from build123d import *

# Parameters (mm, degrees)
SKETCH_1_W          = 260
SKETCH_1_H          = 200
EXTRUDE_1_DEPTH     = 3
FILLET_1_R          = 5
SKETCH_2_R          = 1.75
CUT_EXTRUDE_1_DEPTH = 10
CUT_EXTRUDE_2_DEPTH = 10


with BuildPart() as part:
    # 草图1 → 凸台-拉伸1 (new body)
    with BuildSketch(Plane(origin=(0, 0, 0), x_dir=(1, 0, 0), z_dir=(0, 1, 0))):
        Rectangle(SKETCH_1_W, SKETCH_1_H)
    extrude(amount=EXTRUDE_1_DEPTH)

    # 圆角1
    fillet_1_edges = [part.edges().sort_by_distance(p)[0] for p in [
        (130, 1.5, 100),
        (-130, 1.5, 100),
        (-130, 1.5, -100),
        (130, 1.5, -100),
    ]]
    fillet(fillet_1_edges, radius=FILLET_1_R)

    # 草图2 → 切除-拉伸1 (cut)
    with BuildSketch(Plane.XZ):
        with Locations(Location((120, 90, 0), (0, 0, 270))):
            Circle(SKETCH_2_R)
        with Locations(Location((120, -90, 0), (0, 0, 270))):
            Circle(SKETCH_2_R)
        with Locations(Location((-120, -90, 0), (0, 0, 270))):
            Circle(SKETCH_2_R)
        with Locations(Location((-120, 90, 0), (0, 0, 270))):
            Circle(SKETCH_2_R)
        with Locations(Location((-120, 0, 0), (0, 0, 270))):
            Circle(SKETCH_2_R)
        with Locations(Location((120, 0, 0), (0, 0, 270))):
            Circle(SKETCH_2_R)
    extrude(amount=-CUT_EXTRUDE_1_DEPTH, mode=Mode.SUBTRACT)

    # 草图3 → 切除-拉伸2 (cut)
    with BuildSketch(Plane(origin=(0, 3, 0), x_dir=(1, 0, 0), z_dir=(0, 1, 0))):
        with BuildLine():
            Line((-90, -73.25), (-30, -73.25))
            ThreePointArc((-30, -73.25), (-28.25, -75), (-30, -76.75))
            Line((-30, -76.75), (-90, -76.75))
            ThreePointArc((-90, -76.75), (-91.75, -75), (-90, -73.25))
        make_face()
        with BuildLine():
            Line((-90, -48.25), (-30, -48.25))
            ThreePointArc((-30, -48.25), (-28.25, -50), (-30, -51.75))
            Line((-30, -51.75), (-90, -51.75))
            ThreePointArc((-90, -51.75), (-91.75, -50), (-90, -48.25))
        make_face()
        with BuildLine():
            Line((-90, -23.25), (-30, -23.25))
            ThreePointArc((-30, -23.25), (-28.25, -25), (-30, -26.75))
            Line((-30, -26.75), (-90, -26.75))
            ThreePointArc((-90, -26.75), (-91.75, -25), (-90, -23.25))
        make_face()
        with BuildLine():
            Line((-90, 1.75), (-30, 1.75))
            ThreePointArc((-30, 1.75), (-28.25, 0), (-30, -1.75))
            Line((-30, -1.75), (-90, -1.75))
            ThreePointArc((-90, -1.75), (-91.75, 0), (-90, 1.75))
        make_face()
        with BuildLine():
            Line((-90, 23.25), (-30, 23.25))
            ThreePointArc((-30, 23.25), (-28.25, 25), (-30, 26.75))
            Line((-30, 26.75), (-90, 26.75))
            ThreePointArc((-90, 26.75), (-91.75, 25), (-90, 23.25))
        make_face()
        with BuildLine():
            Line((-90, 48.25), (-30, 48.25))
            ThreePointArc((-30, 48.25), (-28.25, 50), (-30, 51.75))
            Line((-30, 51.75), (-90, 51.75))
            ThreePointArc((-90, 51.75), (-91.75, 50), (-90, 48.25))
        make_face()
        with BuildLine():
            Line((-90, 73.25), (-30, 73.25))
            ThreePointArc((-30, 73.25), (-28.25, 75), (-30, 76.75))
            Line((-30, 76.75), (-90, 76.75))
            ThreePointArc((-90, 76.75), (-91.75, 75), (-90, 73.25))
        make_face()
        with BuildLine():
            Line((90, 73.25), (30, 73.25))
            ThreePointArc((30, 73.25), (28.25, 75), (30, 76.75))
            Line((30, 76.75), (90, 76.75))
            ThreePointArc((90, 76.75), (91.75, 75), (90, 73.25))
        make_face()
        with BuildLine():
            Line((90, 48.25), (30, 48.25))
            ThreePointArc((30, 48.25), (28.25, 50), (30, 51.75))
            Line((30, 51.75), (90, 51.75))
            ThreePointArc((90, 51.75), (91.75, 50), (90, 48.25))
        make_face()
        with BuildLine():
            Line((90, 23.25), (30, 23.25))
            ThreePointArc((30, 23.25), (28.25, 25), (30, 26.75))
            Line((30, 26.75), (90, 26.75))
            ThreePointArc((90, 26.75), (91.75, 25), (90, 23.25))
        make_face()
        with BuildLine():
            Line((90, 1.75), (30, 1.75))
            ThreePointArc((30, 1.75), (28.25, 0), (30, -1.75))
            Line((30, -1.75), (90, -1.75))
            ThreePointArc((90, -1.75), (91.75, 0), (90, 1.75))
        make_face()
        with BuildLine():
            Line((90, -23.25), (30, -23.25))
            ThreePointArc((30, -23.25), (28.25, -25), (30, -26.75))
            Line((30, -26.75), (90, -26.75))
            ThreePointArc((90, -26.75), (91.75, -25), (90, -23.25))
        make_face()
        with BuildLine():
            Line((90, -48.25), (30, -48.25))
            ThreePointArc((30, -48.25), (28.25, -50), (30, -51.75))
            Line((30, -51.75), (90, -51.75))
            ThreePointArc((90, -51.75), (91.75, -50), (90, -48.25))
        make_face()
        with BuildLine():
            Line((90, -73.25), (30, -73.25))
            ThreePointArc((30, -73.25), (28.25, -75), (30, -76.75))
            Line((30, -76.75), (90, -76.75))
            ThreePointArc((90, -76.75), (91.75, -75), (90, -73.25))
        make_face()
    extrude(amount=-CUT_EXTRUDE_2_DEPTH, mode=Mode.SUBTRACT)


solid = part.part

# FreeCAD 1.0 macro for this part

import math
import FreeCAD as App
import Part
import Sketcher

V = App.Vector


def edges_at(feature, points):
    """Names of the edges that pass closest to the given points."""
    edges = feature.Shape.Edges
    near = lambda p: min(range(len(edges)), key=lambda i: edges[i].distToShape(Part.Vertex(*p))[0])
    return sorted({f"Edge{near(p) + 1}" for p in points})


def add_polygon(sketch, points):
    """Adds a closed chain of lines whose ends are joined by coincident constraints."""
    first, n = sketch.GeometryCount, len(points)
    for a, b in zip(points, points[1:] + points[:1]):
        sketch.addGeometry(Part.LineSegment(App.Vector(*a, 0), App.Vector(*b, 0)), False)
    for i in range(n):
        sketch.addConstraint(Sketcher.Constraint("Coincident", first + i, 2, first + (i + 1) % n, 1))

doc = App.newDocument("Part")
body = doc.addObject("PartDesign::Body", "Body")

# Sketch on XZ plane
sketch1 = body.newObject("Sketcher::SketchObject", "Sketch")
sketch1.AttachmentSupport = (doc.getObject("XZ_Plane"), [""])
sketch1.MapMode = "FlatFace"
add_polygon(sketch1, [(-130, -100), (-130, 100), (130, 100), (130, -100)])  # lines 0-3
sketch1.addConstraint([
    Sketcher.Constraint("Vertical", 0),
    Sketcher.Constraint("Horizontal", 1),
    Sketcher.Constraint("Vertical", 2),
    Sketcher.Constraint("Horizontal", 3),
    Sketcher.Constraint("Symmetric", 0, 2, 2, 2, -1, 1),
    Sketcher.Constraint("DistanceX", 1, 1, 1, 2, 260.0),
    Sketcher.Constraint("DistanceY", 0, 1, 0, 2, 200.0),
])
pad1 = body.newObject("PartDesign::Pad", "Pad")
pad1.Profile = sketch1
pad1.Length = 3
pad1.Reversed = True
doc.recompute()

fillet = body.newObject("PartDesign::Fillet", "Fillet")
fillet.Base = (pad1, edges_at(pad1, [
    (130, 1.5, 100),
    (-130, 1.5, 100),
    (-130, 1.5, -100),
    (130, 1.5, -100),
]))
fillet.Radius = 5

# Sketch on XZ plane
sketch2 = body.newObject("Sketcher::SketchObject", "Sketch001")
sketch2.AttachmentSupport = (doc.getObject("XZ_Plane"), [""])
sketch2.MapMode = "FlatFace"
sketch2.addGeometry([
    Part.Circle(V(120, 90, 0), V(0, 0, 1), 1.8),  # 0
    Part.Circle(V(120, -90, 0), V(0, 0, 1), 1.8),  # 1
    Part.Circle(V(-120, -90, 0), V(0, 0, 1), 1.8),  # 2
    Part.Circle(V(-120, 90, 0), V(0, 0, 1), 1.8),  # 3
    Part.Circle(V(-120, 0, 0), V(0, 0, 1), 1.8),  # 4
    Part.Circle(V(120, 0, 0), V(0, 0, 1), 1.8),  # 5
], False)
sketch2.addConstraint([
    Sketcher.Constraint("Equal", 0, 1),
    Sketcher.Constraint("Equal", 1, 2),
    Sketcher.Constraint("Equal", 2, 3),
    Sketcher.Constraint("Equal", 3, 4),
    Sketcher.Constraint("Equal", 4, 5),
    Sketcher.Constraint("Symmetric", 0, 3, 2, 3, -1, 1),
    Sketcher.Constraint("Symmetric", 1, 3, 3, 3, -1, 1),
    Sketcher.Constraint("Symmetric", 4, 3, 5, 3, -1, 1),
    Sketcher.Constraint("Symmetric", 1, 3, 2, 3, -2),
    Sketcher.Constraint("PointOnObject", 4, 3, -1),
    Sketcher.Constraint("Vertical", 3, 3, 4, 3),
    Sketcher.Constraint("Diameter", 0, 3.5),
    Sketcher.Constraint("DistanceX", -1, 1, 0, 3, 120.0),
    Sketcher.Constraint("DistanceY", -1, 1, 0, 3, 90.0),
])
pocket1 = body.newObject("PartDesign::Pocket", "Pocket")
pocket1.Profile = sketch2
pocket1.Length = 10

# Sketch on XZ plane
sketch3 = body.newObject("Sketcher::SketchObject", "Sketch002")
sketch3.AttachmentSupport = (doc.getObject("XZ_Plane"), [""])
sketch3.MapMode = "FlatFace"
sketch3.AttachmentOffset = App.Placement(V(0, 0, -3), App.Rotation())
sketch3.addGeometry([
    Part.LineSegment(V(-30, 73.2, 0), V(-90, 73.2, 0)),  # 0
    Part.ArcOfCircle(Part.Circle(V(-90, 75, 0), V(0, 0, 1), 1.8), math.radians(90), math.radians(270)),  # 1
    Part.LineSegment(V(-90, 76.8, 0), V(-30, 76.8, 0)),  # 2
    Part.ArcOfCircle(Part.Circle(V(-30, 75, 0), V(0, 0, 1), 1.8), math.radians(-90), math.radians(90)),  # 3
    Part.LineSegment(V(-30, 48.2, 0), V(-90, 48.2, 0)),  # 4
    Part.ArcOfCircle(Part.Circle(V(-90, 50, 0), V(0, 0, 1), 1.8), math.radians(90), math.radians(270)),  # 5
    Part.LineSegment(V(-90, 51.8, 0), V(-30, 51.8, 0)),  # 6
    Part.ArcOfCircle(Part.Circle(V(-30, 50, 0), V(0, 0, 1), 1.8), math.radians(-90), math.radians(90)),  # 7
    Part.LineSegment(V(-30, 23.2, 0), V(-90, 23.2, 0)),  # 8
    Part.ArcOfCircle(Part.Circle(V(-90, 25, 0), V(0, 0, 1), 1.8), math.radians(90), math.radians(270)),  # 9
    Part.LineSegment(V(-90, 26.8, 0), V(-30, 26.8, 0)),  # 10
    Part.ArcOfCircle(Part.Circle(V(-30, 25, 0), V(0, 0, 1), 1.8), math.radians(-90), math.radians(90)),  # 11
    Part.LineSegment(V(-30, -1.8, 0), V(-90, -1.8, 0)),  # 12
    Part.ArcOfCircle(Part.Circle(V(-90, 0, 0), V(0, 0, 1), 1.8), math.radians(90), math.radians(270)),  # 13
    Part.LineSegment(V(-90, 1.8, 0), V(-30, 1.8, 0)),  # 14
    Part.ArcOfCircle(Part.Circle(V(-30, 0, 0), V(0, 0, 1), 1.8), math.radians(-90), math.radians(90)),  # 15
    Part.LineSegment(V(-90, -23.2, 0), V(-30, -23.2, 0)),  # 16
    Part.ArcOfCircle(Part.Circle(V(-30, -25, 0), V(0, 0, 1), 1.8), math.radians(-90), math.radians(90)),  # 17
    Part.LineSegment(V(-30, -26.8, 0), V(-90, -26.8, 0)),  # 18
    Part.ArcOfCircle(Part.Circle(V(-90, -25, 0), V(0, 0, 1), 1.8), math.radians(90), math.radians(270)),  # 19
    Part.LineSegment(V(-90, -48.2, 0), V(-30, -48.2, 0)),  # 20
    Part.ArcOfCircle(Part.Circle(V(-30, -50, 0), V(0, 0, 1), 1.8), math.radians(-90), math.radians(90)),  # 21
    Part.LineSegment(V(-30, -51.8, 0), V(-90, -51.8, 0)),  # 22
    Part.ArcOfCircle(Part.Circle(V(-90, -50, 0), V(0, 0, 1), 1.8), math.radians(90), math.radians(270)),  # 23
    Part.LineSegment(V(-90, -73.2, 0), V(-30, -73.2, 0)),  # 24
    Part.ArcOfCircle(Part.Circle(V(-30, -75, 0), V(0, 0, 1), 1.8), math.radians(-90), math.radians(90)),  # 25
    Part.LineSegment(V(-30, -76.8, 0), V(-90, -76.8, 0)),  # 26
    Part.ArcOfCircle(Part.Circle(V(-90, -75, 0), V(0, 0, 1), 1.8), math.radians(90), math.radians(270)),  # 27
    Part.LineSegment(V(30, -73.2, 0), V(90, -73.2, 0)),  # 28
    Part.ArcOfCircle(Part.Circle(V(90, -75, 0), V(0, 0, 1), 1.8), math.radians(-90), math.radians(90)),  # 29
    Part.LineSegment(V(90, -76.8, 0), V(30, -76.8, 0)),  # 30
    Part.ArcOfCircle(Part.Circle(V(30, -75, 0), V(0, 0, 1), 1.8), math.radians(90), math.radians(270)),  # 31
    Part.LineSegment(V(30, -48.2, 0), V(90, -48.2, 0)),  # 32
    Part.ArcOfCircle(Part.Circle(V(90, -50, 0), V(0, 0, 1), 1.8), math.radians(-90), math.radians(90)),  # 33
    Part.LineSegment(V(90, -51.8, 0), V(30, -51.8, 0)),  # 34
    Part.ArcOfCircle(Part.Circle(V(30, -50, 0), V(0, 0, 1), 1.8), math.radians(90), math.radians(270)),  # 35
    Part.LineSegment(V(30, -23.2, 0), V(90, -23.2, 0)),  # 36
    Part.ArcOfCircle(Part.Circle(V(90, -25, 0), V(0, 0, 1), 1.8), math.radians(-90), math.radians(90)),  # 37
    Part.LineSegment(V(90, -26.8, 0), V(30, -26.8, 0)),  # 38
    Part.ArcOfCircle(Part.Circle(V(30, -25, 0), V(0, 0, 1), 1.8), math.radians(90), math.radians(270)),  # 39
    Part.LineSegment(V(90, -1.8, 0), V(30, -1.8, 0)),  # 40
    Part.ArcOfCircle(Part.Circle(V(30, 0, 0), V(0, 0, 1), 1.8), math.radians(90), math.radians(270)),  # 41
    Part.LineSegment(V(30, 1.8, 0), V(90, 1.8, 0)),  # 42
    Part.ArcOfCircle(Part.Circle(V(90, 0, 0), V(0, 0, 1), 1.8), math.radians(-90), math.radians(90)),  # 43
    Part.LineSegment(V(90, 23.2, 0), V(30, 23.2, 0)),  # 44
    Part.ArcOfCircle(Part.Circle(V(30, 25, 0), V(0, 0, 1), 1.8), math.radians(90), math.radians(270)),  # 45
    Part.LineSegment(V(30, 26.8, 0), V(90, 26.8, 0)),  # 46
    Part.ArcOfCircle(Part.Circle(V(90, 25, 0), V(0, 0, 1), 1.8), math.radians(-90), math.radians(90)),  # 47
    Part.LineSegment(V(90, 48.2, 0), V(30, 48.2, 0)),  # 48
    Part.ArcOfCircle(Part.Circle(V(30, 50, 0), V(0, 0, 1), 1.8), math.radians(90), math.radians(270)),  # 49
    Part.LineSegment(V(30, 51.8, 0), V(90, 51.8, 0)),  # 50
    Part.ArcOfCircle(Part.Circle(V(90, 50, 0), V(0, 0, 1), 1.8), math.radians(-90), math.radians(90)),  # 51
    Part.LineSegment(V(90, 73.2, 0), V(30, 73.2, 0)),  # 52
    Part.ArcOfCircle(Part.Circle(V(30, 75, 0), V(0, 0, 1), 1.8), math.radians(90), math.radians(270)),  # 53
    Part.LineSegment(V(30, 76.8, 0), V(90, 76.8, 0)),  # 54
    Part.ArcOfCircle(Part.Circle(V(90, 75, 0), V(0, 0, 1), 1.8), math.radians(-90), math.radians(90)),  # 55
], False)
sketch3.addConstraint([
    Sketcher.Constraint("Tangent", 0, 2, 1, 2),
    Sketcher.Constraint("Tangent", 1, 1, 2, 1),
    Sketcher.Constraint("Tangent", 2, 2, 3, 2),
    Sketcher.Constraint("Tangent", 3, 1, 0, 1),
    Sketcher.Constraint("Tangent", 4, 2, 5, 2),
    Sketcher.Constraint("Tangent", 5, 1, 6, 1),
    Sketcher.Constraint("Tangent", 6, 2, 7, 2),
    Sketcher.Constraint("Tangent", 7, 1, 4, 1),
    Sketcher.Constraint("Tangent", 8, 2, 9, 2),
    Sketcher.Constraint("Tangent", 9, 1, 10, 1),
    Sketcher.Constraint("Tangent", 10, 2, 11, 2),
    Sketcher.Constraint("Tangent", 11, 1, 8, 1),
    Sketcher.Constraint("Tangent", 12, 2, 13, 2),
    Sketcher.Constraint("Tangent", 13, 1, 14, 1),
    Sketcher.Constraint("Tangent", 14, 2, 15, 2),
    Sketcher.Constraint("Tangent", 15, 1, 12, 1),
    Sketcher.Constraint("Tangent", 16, 2, 17, 2),
    Sketcher.Constraint("Tangent", 17, 1, 18, 1),
    Sketcher.Constraint("Tangent", 18, 2, 19, 2),
    Sketcher.Constraint("Tangent", 19, 1, 16, 1),
    Sketcher.Constraint("Tangent", 20, 2, 21, 2),
    Sketcher.Constraint("Tangent", 21, 1, 22, 1),
    Sketcher.Constraint("Tangent", 22, 2, 23, 2),
    Sketcher.Constraint("Tangent", 23, 1, 20, 1),
    Sketcher.Constraint("Tangent", 24, 2, 25, 2),
    Sketcher.Constraint("Tangent", 25, 1, 26, 1),
    Sketcher.Constraint("Tangent", 26, 2, 27, 2),
    Sketcher.Constraint("Tangent", 27, 1, 24, 1),
    Sketcher.Constraint("Tangent", 28, 2, 29, 2),
    Sketcher.Constraint("Tangent", 29, 1, 30, 1),
    Sketcher.Constraint("Tangent", 30, 2, 31, 2),
    Sketcher.Constraint("Tangent", 31, 1, 28, 1),
    Sketcher.Constraint("Tangent", 32, 2, 33, 2),
    Sketcher.Constraint("Tangent", 33, 1, 34, 1),
    Sketcher.Constraint("Tangent", 34, 2, 35, 2),
    Sketcher.Constraint("Tangent", 35, 1, 32, 1),
    Sketcher.Constraint("Tangent", 36, 2, 37, 2),
    Sketcher.Constraint("Tangent", 37, 1, 38, 1),
    Sketcher.Constraint("Tangent", 38, 2, 39, 2),
    Sketcher.Constraint("Tangent", 39, 1, 36, 1),
    Sketcher.Constraint("Tangent", 40, 2, 41, 2),
    Sketcher.Constraint("Tangent", 41, 1, 42, 1),
    Sketcher.Constraint("Tangent", 42, 2, 43, 2),
    Sketcher.Constraint("Tangent", 43, 1, 40, 1),
    Sketcher.Constraint("Tangent", 44, 2, 45, 2),
    Sketcher.Constraint("Tangent", 45, 1, 46, 1),
    Sketcher.Constraint("Tangent", 46, 2, 47, 2),
    Sketcher.Constraint("Tangent", 47, 1, 44, 1),
    Sketcher.Constraint("Tangent", 48, 2, 49, 2),
    Sketcher.Constraint("Tangent", 49, 1, 50, 1),
    Sketcher.Constraint("Tangent", 50, 2, 51, 2),
    Sketcher.Constraint("Tangent", 51, 1, 48, 1),
    Sketcher.Constraint("Tangent", 52, 2, 53, 2),
    Sketcher.Constraint("Tangent", 53, 1, 54, 1),
    Sketcher.Constraint("Tangent", 54, 2, 55, 2),
    Sketcher.Constraint("Tangent", 55, 1, 52, 1),
    Sketcher.Constraint("Horizontal", 0),
    Sketcher.Constraint("Horizontal", 2),
    Sketcher.Constraint("Horizontal", 4),
    Sketcher.Constraint("Horizontal", 6),
    Sketcher.Constraint("Horizontal", 8),
    Sketcher.Constraint("Horizontal", 10),
    Sketcher.Constraint("Horizontal", 12),
    Sketcher.Constraint("Horizontal", 14),
    Sketcher.Constraint("Horizontal", 16),
    Sketcher.Constraint("Horizontal", 18),
    Sketcher.Constraint("Horizontal", 20),
    Sketcher.Constraint("Horizontal", 22),
    Sketcher.Constraint("Horizontal", 24),
    Sketcher.Constraint("Horizontal", 26),
    Sketcher.Constraint("Horizontal", 28),
    Sketcher.Constraint("Horizontal", 30),
    Sketcher.Constraint("Horizontal", 32),
    Sketcher.Constraint("Horizontal", 34),
    Sketcher.Constraint("Horizontal", 36),
    Sketcher.Constraint("Horizontal", 38),
    Sketcher.Constraint("Horizontal", 40),
    Sketcher.Constraint("Horizontal", 42),
    Sketcher.Constraint("Horizontal", 44),
    Sketcher.Constraint("Horizontal", 46),
    Sketcher.Constraint("Horizontal", 48),
    Sketcher.Constraint("Horizontal", 50),
    Sketcher.Constraint("Horizontal", 52),
    Sketcher.Constraint("Horizontal", 54),
    Sketcher.Constraint("Equal", 3, 5),
    Sketcher.Constraint("Equal", 7, 9),
    Sketcher.Constraint("Equal", 11, 13),
    Sketcher.Constraint("Equal", 15, 17),
    Sketcher.Constraint("Equal", 19, 21),
    Sketcher.Constraint("Equal", 23, 25),
    Sketcher.Constraint("Equal", 27, 29),
    Sketcher.Constraint("Equal", 31, 33),
    Sketcher.Constraint("Equal", 35, 37),
    Sketcher.Constraint("Equal", 39, 41),
    Sketcher.Constraint("Equal", 43, 45),
    Sketcher.Constraint("Equal", 47, 49),
    Sketcher.Constraint("Equal", 51, 53),
    Sketcher.Constraint("Symmetric", 1, 3, 29, 3, -1, 1),
    Sketcher.Constraint("Symmetric", 5, 3, 33, 3, -1, 1),
    Sketcher.Constraint("Symmetric", 9, 3, 37, 3, -1, 1),
    Sketcher.Constraint("Symmetric", 15, 3, 41, 3, -1, 1),
    Sketcher.Constraint("Symmetric", 17, 3, 45, 3, -1, 1),
    Sketcher.Constraint("Symmetric", 21, 3, 49, 3, -1, 1),
    Sketcher.Constraint("Symmetric", 25, 3, 53, 3, -1, 1),
    Sketcher.Constraint("Symmetric", 27, 3, 29, 3, -2),
    Sketcher.Constraint("Symmetric", 23, 3, 33, 3, -2),
    Sketcher.Constraint("Symmetric", 19, 3, 37, 3, -2),
    Sketcher.Constraint("Symmetric", 13, 3, 43, 3, -2),
    Sketcher.Constraint("Vertical", 1, 3, 5, 3),
    Sketcher.Constraint("Vertical", 3, 3, 7, 3),
    Sketcher.Constraint("Vertical", 5, 3, 9, 3),
    Sketcher.Constraint("Vertical", 7, 3, 11, 3),
    Sketcher.Constraint("Vertical", 9, 3, 13, 3),
    Sketcher.Constraint("Vertical", 11, 3, 15, 3),
    Sketcher.Constraint("Vertical", 15, 3, 17, 3),
    Sketcher.Constraint("Vertical", 17, 3, 21, 3),
    Sketcher.Constraint("Vertical", 21, 3, 25, 3),
    Sketcher.Constraint("Vertical", 31, 3, 35, 3),
    Sketcher.Constraint("Vertical", 35, 3, 39, 3),
    Sketcher.Constraint("Vertical", 39, 3, 41, 3),
    Sketcher.Constraint("Vertical", 43, 3, 47, 3),
    Sketcher.Constraint("Vertical", 47, 3, 51, 3),
    Sketcher.Constraint("Vertical", 51, 3, 55, 3),
    Sketcher.Constraint("DistanceX", 0, 2, 0, 1, 60.0),
    Sketcher.Constraint("Radius", 1, 1.75),
    Sketcher.Constraint("DistanceX", 1, 3, -1, 1, 90.0),
    Sketcher.Constraint("DistanceY", -1, 1, 1, 3, 75.0),
    Sketcher.Constraint("DistanceY", -1, 1, 5, 3, 50.0),
    Sketcher.Constraint("DistanceY", -1, 1, 9, 3, 25.0),
])
pocket2 = body.newObject("PartDesign::Pocket", "Pocket001")
pocket2.Profile = sketch3
pocket2.Length = 10
pocket2.Reversed = True

doc.recompute()
